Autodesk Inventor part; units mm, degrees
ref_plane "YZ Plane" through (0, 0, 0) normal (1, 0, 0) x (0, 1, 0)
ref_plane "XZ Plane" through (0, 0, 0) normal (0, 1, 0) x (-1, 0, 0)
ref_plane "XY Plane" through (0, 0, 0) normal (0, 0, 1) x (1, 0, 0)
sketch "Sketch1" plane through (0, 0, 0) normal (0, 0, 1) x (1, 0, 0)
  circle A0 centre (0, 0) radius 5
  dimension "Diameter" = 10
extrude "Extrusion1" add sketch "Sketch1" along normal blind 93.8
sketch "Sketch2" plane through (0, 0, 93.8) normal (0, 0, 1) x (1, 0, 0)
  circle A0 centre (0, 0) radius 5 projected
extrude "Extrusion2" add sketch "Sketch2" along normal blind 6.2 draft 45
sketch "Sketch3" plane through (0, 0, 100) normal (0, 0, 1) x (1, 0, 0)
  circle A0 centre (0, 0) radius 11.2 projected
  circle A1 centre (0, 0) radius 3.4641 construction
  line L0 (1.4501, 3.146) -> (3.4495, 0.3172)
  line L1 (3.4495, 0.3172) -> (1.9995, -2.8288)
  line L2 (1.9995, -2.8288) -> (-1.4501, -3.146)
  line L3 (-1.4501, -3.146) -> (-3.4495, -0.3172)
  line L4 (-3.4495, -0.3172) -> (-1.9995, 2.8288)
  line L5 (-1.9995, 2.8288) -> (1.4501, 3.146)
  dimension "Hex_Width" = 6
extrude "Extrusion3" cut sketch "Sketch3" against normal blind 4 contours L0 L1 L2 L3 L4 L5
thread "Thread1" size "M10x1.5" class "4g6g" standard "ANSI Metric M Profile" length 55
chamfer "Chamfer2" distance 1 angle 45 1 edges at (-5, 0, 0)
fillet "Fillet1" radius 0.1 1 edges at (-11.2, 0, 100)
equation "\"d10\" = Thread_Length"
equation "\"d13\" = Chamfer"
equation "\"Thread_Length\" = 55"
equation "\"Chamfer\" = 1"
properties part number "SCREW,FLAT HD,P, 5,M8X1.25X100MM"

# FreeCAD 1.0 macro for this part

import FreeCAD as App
import Part
import Sketcher

V = App.Vector
Q = App.Units.Quantity


def edges_at(feature, points):
    """Names of the edges that pass closest to the given points."""
    edges = feature.Shape.Edges
    near = lambda p: min(range(len(edges)), key=lambda i: edges[i].distToShape(Part.Vertex(*p))[0])
    return sorted({f"Edge{near(p) + 1}" for p in points})

doc = App.newDocument("Part")
body = doc.addObject("PartDesign::Body", "Body")

sketch1 = doc.addObject("Sketcher::SketchObject", "Sketch")
body.addObject(sketch1)
sketch1.AttachmentSupport = (doc.XY_Plane, [""])
sketch1.MapMode = "FlatFace"
sketch1.addGeometry(Part.Circle(V(0, 0, 0), V(0, 0, 1), 5), False)
sketch1.addConstraint([
    Sketcher.Constraint("Coincident", 0, 3, -1, 1),
    Sketcher.Constraint("Diameter", 0, Q("10 mm")),
])
pad1 = doc.addObject("PartDesign::Pad", "Pad")
body.addObject(pad1)
pad1.Profile = sketch1
pad1.Length = 93.8

sketch2 = doc.addObject("Sketcher::SketchObject", "Sketch001")
body.addObject(sketch2)
sketch2.AttachmentSupport = (doc.XY_Plane, [""])
sketch2.MapMode = "FlatFace"
sketch2.AttachmentOffset = App.Placement(V(0, 0, 93.8), App.Rotation())
sketch2.addGeometry(Part.Circle(V(0, 0, 0), V(0, 0, 1), 5), False)
sketch2.addConstraint([
    Sketcher.Constraint("Coincident", 0, 3, -1, 1),
    Sketcher.Constraint("Diameter", 0, Q("10 mm")),
])
pad2 = doc.addObject("PartDesign::Pad", "Pad001")
body.addObject(pad2)
pad2.Profile = sketch2
pad2.Length = 6.2
pad2.TaperAngle = 45

sketch3 = doc.addObject("Sketcher::SketchObject", "Sketch002")
body.addObject(sketch3)
sketch3.AttachmentSupport = (doc.XY_Plane, [""])
sketch3.MapMode = "FlatFace"
sketch3.AttachmentOffset = App.Placement(V(0, 0, 100), App.Rotation())
sketch3.addGeometry([
    Part.LineSegment(V(3.4495, 0.3172, 0), V(1.4501, 3.146, 0)),
    Part.LineSegment(V(1.4501, 3.146, 0), V(-1.9995, 2.8288, 0)),
    Part.LineSegment(V(-1.9995, 2.8288, 0), V(-3.4495, -0.3172, 0)),
    Part.LineSegment(V(-3.4495, -0.3172, 0), V(-1.4501, -3.146, 0)),
    Part.LineSegment(V(-1.4501, -3.146, 0), V(1.9995, -2.8288, 0)),
    Part.LineSegment(V(1.9995, -2.8288, 0), V(3.4495, 0.3172, 0)),
], False)
sketch3.addConstraint([
    Sketcher.Constraint("Coincident", 0, 2, 1, 1),
    Sketcher.Constraint("Coincident", 1, 2, 2, 1),
    Sketcher.Constraint("Coincident", 2, 2, 3, 1),
    Sketcher.Constraint("Coincident", 3, 2, 4, 1),
    Sketcher.Constraint("Coincident", 4, 2, 5, 1),
    Sketcher.Constraint("Coincident", 5, 2, 0, 1),
    Sketcher.Constraint("Symmetric", 0, 2, 3, 2, -1, 1),
    Sketcher.Constraint("Symmetric", 1, 2, 4, 2, -1, 1),
    Sketcher.Constraint("Symmetric", 2, 2, 5, 2, -1, 1),
    Sketcher.Constraint("Equal", 0, 1),
    Sketcher.Constraint("Equal", 1, 2),
    Sketcher.Constraint("DistanceX", -1, 1, 0, 2, Q("1.45 mm")),
    Sketcher.Constraint("DistanceX", 2, 2, 1, 2, Q("1.45 mm")),
    Sketcher.Constraint("Distance", 0, Q("3.464 mm")),
    Sketcher.Constraint("DistanceY", -1, 1, 0, 2, Q("3.146 mm")),
])
pocket1 = doc.addObject("PartDesign::Pocket", "Pocket")
body.addObject(pocket1)
pocket1.Profile = sketch3
pocket1.Length = 4
doc.recompute()

chamfer = doc.addObject("PartDesign::Chamfer", "Chamfer")
body.addObject(chamfer)
chamfer.Base = (pocket1, edges_at(pocket1, [(-5, 0, 0)]))
chamfer.Size = 1
doc.recompute()

fillet = doc.addObject("PartDesign::Fillet", "Fillet")
body.addObject(fillet)
fillet.Base = (chamfer, edges_at(chamfer, [(-11.2, 0, 100)]))
fillet.Radius = 0.1

doc.recompute()
